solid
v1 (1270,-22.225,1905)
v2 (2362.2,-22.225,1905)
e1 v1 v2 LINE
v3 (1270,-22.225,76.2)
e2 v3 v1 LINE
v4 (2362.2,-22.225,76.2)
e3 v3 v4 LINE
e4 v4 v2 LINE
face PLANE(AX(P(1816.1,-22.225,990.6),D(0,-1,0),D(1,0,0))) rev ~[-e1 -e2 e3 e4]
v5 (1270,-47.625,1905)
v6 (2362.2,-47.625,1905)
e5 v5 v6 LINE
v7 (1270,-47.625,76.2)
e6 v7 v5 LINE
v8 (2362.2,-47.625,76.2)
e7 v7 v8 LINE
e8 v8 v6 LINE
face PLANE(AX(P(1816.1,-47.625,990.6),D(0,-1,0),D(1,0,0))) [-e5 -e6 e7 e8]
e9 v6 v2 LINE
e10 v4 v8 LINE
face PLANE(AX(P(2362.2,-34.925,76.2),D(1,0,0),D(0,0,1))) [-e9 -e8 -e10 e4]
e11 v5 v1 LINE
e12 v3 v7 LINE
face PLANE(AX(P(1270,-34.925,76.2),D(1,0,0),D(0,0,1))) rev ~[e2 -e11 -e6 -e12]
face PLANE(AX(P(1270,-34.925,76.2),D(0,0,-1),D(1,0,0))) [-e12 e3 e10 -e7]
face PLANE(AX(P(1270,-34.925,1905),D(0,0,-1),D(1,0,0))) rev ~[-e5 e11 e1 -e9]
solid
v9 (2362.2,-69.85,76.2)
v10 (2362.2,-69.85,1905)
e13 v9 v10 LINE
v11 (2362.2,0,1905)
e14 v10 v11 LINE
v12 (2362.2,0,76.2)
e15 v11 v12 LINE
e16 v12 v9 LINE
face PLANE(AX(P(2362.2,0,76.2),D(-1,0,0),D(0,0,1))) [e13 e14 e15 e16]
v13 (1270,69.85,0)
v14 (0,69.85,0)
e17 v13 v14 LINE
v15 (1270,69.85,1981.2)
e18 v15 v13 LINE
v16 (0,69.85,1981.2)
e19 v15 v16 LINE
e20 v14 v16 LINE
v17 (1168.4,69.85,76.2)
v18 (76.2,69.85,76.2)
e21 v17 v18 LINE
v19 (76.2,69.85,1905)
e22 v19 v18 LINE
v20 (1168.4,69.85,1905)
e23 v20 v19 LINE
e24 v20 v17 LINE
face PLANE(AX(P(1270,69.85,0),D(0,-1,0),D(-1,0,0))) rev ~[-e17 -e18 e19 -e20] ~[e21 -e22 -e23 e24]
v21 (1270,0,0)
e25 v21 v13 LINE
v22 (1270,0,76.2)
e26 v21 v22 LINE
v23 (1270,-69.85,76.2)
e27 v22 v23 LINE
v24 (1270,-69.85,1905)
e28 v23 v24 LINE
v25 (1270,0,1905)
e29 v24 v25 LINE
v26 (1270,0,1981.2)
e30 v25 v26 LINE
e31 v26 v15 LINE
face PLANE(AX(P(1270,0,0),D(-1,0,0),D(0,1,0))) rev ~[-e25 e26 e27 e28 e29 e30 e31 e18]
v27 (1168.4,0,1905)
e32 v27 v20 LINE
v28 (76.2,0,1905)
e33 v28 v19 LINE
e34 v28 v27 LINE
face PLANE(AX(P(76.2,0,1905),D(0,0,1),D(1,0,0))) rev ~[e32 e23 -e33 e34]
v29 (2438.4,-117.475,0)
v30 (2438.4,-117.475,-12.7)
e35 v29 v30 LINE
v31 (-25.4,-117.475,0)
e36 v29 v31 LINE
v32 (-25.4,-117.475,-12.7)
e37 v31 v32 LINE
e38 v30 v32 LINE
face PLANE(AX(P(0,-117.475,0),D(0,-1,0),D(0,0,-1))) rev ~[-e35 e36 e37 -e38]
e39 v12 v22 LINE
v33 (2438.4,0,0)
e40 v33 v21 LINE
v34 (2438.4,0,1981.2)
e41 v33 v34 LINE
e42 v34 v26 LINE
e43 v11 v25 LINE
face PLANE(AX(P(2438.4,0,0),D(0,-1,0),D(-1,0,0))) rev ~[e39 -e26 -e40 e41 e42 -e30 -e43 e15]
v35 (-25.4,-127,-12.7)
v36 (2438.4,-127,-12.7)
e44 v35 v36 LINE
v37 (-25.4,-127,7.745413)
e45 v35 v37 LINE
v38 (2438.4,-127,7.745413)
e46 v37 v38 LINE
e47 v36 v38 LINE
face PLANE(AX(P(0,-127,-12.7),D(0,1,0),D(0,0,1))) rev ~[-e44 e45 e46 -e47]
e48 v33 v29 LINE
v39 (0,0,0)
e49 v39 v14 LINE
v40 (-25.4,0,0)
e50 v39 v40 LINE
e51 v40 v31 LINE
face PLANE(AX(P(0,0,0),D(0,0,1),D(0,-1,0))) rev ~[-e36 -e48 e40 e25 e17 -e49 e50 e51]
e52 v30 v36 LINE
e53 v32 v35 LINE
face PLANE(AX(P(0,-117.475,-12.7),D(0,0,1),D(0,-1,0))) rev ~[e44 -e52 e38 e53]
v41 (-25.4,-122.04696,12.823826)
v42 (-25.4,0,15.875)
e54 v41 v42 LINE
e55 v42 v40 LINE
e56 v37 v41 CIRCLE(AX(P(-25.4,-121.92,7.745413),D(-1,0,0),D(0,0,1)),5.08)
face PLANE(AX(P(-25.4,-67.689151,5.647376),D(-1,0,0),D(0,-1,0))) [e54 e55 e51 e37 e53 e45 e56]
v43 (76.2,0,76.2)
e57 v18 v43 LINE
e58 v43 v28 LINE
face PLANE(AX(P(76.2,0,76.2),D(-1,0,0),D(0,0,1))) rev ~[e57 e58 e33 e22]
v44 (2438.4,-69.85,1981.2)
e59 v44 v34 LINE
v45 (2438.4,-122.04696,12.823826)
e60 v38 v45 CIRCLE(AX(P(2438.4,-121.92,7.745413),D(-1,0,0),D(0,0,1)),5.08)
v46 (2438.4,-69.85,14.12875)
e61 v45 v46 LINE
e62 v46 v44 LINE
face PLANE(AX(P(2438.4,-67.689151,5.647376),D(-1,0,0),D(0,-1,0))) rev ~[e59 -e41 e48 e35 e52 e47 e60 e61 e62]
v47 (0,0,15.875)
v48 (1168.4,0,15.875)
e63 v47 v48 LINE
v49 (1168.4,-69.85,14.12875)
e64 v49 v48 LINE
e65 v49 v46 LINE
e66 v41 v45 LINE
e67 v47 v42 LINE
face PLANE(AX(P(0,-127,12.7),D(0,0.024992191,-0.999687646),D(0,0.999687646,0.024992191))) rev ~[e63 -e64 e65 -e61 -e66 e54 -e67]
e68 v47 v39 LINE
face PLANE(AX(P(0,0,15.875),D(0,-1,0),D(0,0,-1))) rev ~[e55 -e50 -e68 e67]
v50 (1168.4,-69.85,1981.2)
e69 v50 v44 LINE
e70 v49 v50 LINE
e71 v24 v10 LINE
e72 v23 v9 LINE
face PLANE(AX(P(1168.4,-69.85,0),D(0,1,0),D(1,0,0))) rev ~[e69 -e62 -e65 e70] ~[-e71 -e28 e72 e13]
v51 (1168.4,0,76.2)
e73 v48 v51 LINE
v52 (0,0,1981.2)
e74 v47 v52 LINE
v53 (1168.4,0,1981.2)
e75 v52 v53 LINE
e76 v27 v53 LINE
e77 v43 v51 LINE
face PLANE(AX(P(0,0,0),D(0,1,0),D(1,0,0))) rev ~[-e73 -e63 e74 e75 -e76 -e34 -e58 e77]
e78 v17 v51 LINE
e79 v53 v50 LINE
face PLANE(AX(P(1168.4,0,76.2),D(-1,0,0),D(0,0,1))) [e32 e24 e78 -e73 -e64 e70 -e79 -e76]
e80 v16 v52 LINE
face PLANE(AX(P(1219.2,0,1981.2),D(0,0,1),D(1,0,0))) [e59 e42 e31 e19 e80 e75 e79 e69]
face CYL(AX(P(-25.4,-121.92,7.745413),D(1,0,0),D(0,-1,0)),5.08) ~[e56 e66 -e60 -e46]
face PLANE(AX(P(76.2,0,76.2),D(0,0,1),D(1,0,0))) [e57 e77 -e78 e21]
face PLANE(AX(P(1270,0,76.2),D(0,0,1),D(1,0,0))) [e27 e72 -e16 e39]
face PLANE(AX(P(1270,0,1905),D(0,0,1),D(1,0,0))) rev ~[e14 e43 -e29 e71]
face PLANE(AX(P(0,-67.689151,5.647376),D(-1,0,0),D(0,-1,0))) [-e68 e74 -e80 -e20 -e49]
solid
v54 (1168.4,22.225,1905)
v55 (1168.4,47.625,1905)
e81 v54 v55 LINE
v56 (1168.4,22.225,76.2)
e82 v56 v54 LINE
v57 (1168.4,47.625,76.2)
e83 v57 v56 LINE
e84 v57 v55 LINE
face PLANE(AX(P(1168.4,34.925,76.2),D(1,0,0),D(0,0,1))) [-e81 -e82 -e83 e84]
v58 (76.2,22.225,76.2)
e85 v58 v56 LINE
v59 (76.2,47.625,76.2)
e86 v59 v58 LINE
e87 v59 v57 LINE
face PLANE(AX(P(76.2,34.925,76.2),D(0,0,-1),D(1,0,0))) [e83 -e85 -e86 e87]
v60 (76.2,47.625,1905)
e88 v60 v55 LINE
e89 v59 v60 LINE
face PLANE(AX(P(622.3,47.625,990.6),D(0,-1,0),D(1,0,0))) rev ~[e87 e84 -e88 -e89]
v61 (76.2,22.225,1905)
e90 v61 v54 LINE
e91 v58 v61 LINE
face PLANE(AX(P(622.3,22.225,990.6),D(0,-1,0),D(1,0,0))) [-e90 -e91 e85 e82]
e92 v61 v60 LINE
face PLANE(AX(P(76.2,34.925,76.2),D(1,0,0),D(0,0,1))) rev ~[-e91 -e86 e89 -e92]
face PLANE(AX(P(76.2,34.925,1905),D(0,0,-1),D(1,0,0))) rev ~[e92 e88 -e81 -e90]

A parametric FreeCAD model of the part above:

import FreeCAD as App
import Part
import Sketcher
from FreeCAD import Vector
Q = App.Units.Quantity


def edges_at(feature, points):
    """Names of the edges that pass closest to the given points."""
    edges = feature.Shape.Edges
    near = lambda p: min(range(len(edges)), key=lambda i: edges[i].distToShape(Part.Vertex(*p))[0])
    return sorted({f"Edge{near(p) + 1}" for p in points})

doc = App.newDocument("Part")
body = doc.addObject("PartDesign::Body", "Body")

# Sketch on XY plane
sketch1 = body.newObject("Sketcher::SketchObject", "Sketch")
sketch1.AttachmentSupport = (doc.getObject("XY_Plane"), [""])
sketch1.MapMode = "FlatFace"
sketch1.addGeometry(Part.LineSegment(Vector(0, 70, 0), Vector(0, 0, 0)), False)
sketch1.addGeometry(Part.LineSegment(Vector(0, 0, 0), Vector(1168, 0, 0)), False)
sketch1.addGeometry(Part.LineSegment(Vector(1168, 0, 0), Vector(1168, -70, 0)), False)
sketch1.addGeometry(Part.LineSegment(Vector(1168, -70, 0), Vector(2438, -70, 0)), False)
sketch1.addGeometry(Part.LineSegment(Vector(2438, -70, 0), Vector(2438, 0, 0)), False)
sketch1.addGeometry(Part.LineSegment(Vector(2438, 0, 0), Vector(1270, 0, 0)), False)
sketch1.addGeometry(Part.LineSegment(Vector(1270, 0, 0), Vector(1270, 70, 0)), False)
sketch1.addGeometry(Part.LineSegment(Vector(1270, 70, 0), Vector(0, 70, 0)), False)
sketch1.addConstraint(Sketcher.Constraint("Coincident", 0, 2, 1, 1))
sketch1.addConstraint(Sketcher.Constraint("Coincident", 1, 2, 2, 1))
sketch1.addConstraint(Sketcher.Constraint("Coincident", 2, 2, 3, 1))
sketch1.addConstraint(Sketcher.Constraint("Coincident", 3, 2, 4, 1))
sketch1.addConstraint(Sketcher.Constraint("Coincident", 4, 2, 5, 1))
sketch1.addConstraint(Sketcher.Constraint("Coincident", 5, 2, 6, 1))
sketch1.addConstraint(Sketcher.Constraint("Coincident", 6, 2, 7, 1))
sketch1.addConstraint(Sketcher.Constraint("Coincident", 7, 2, 0, 1))
sketch1.addConstraint(Sketcher.Constraint("Vertical", 0))
sketch1.addConstraint(Sketcher.Constraint("Horizontal", 1))
sketch1.addConstraint(Sketcher.Constraint("Vertical", 2))
sketch1.addConstraint(Sketcher.Constraint("Horizontal", 3))
sketch1.addConstraint(Sketcher.Constraint("Vertical", 4))
sketch1.addConstraint(Sketcher.Constraint("Horizontal", 5))
sketch1.addConstraint(Sketcher.Constraint("Vertical", 6))
sketch1.addConstraint(Sketcher.Constraint("Horizontal", 7))
sketch1.addConstraint(Sketcher.Constraint("Coincident", 0, 2, -1, 1))
sketch1.addConstraint(Sketcher.Constraint("PointOnObject", 4, 2, -1))
sketch1.addConstraint(Sketcher.Constraint("Equal", 1, 5))
sketch1.addConstraint(Sketcher.Constraint("Equal", 0, 2))
sketch1.addConstraint(Sketcher.Constraint("DistanceX", 1, 1, 1, 2, Q("46 in")))
sketch1.addConstraint(Sketcher.Constraint("DistanceX", 3, 1, 3, 2, Q("50 in")))
sketch1.addConstraint(Sketcher.Constraint("DistanceY", 0, 2, 0, 1, Q("2.75 in")))
pad1 = body.newObject("PartDesign::Pad", "Pad")
pad1.Profile = sketch1
pad1.Length = Q("78 in")
body2 = doc.addObject("PartDesign::Body", "Body001")

# Sketch on XZ plane
sketch2 = body2.newObject("Sketcher::SketchObject", "Sketch001")
sketch2.AttachmentSupport = (doc.getObject("XZ_Plane001"), [""])
sketch2.MapMode = "FlatFace"
sketch2.addGeometry(Part.LineSegment(Vector(76, 1905, 0), Vector(76, 76, 0)), False)
sketch2.addGeometry(Part.LineSegment(Vector(76, 76, 0), Vector(1168, 76, 0)), False)
sketch2.addGeometry(Part.LineSegment(Vector(1168, 76, 0), Vector(1168, 1905, 0)), False)
sketch2.addGeometry(Part.LineSegment(Vector(1168, 1905, 0), Vector(76, 1905, 0)), False)
sketch2.addConstraint(Sketcher.Constraint("Coincident", 0, 2, 1, 1))
sketch2.addConstraint(Sketcher.Constraint("Coincident", 1, 2, 2, 1))
sketch2.addConstraint(Sketcher.Constraint("Coincident", 2, 2, 3, 1))
sketch2.addConstraint(Sketcher.Constraint("Coincident", 3, 2, 0, 1))
sketch2.addConstraint(Sketcher.Constraint("Vertical", 0))
sketch2.addConstraint(Sketcher.Constraint("Horizontal", 1))
sketch2.addConstraint(Sketcher.Constraint("Vertical", 2))
sketch2.addConstraint(Sketcher.Constraint("Horizontal", 3))
sketch2.addConstraint(Sketcher.Constraint("DistanceX", 1, 1, 1, 2, Q("43 in")))
sketch2.addConstraint(Sketcher.Constraint("DistanceY", 0, 2, 0, 1, Q("72 in")))
sketch2.addConstraint(Sketcher.Constraint("DistanceX", -1, 1, 0, 2, Q("3 in")))
sketch2.addConstraint(Sketcher.Constraint("DistanceY", -1, 1, 0, 2, Q("3 in")))
pad2 = body2.newObject("PartDesign::Pad", "Pad001")
pad2.Profile = sketch2
pad2.Type = "TwoLengths"
pad2.Length = Q("3 in")
pad2.Length2 = Q("3 in")
pad2.Reversed = True
body3 = doc.addObject("PartDesign::Body", "Body002")

# Sketch on XZ plane
sketch3 = body3.newObject("Sketcher::SketchObject", "Sketch002")
sketch3.AttachmentSupport = (doc.getObject("XZ_Plane002"), [""])
sketch3.MapMode = "FlatFace"
sketch3.addGeometry(Part.LineSegment(Vector(1270, 1905, 0), Vector(1270, 76, 0)), False)
sketch3.addGeometry(Part.LineSegment(Vector(1270, 76, 0), Vector(2362, 76, 0)), False)
sketch3.addGeometry(Part.LineSegment(Vector(2362, 76, 0), Vector(2362, 1905, 0)), False)
sketch3.addGeometry(Part.LineSegment(Vector(2362, 1905, 0), Vector(1270, 1905, 0)), False)
sketch3.addConstraint(Sketcher.Constraint("Coincident", 0, 2, 1, 1))
sketch3.addConstraint(Sketcher.Constraint("Coincident", 1, 2, 2, 1))
sketch3.addConstraint(Sketcher.Constraint("Coincident", 2, 2, 3, 1))
sketch3.addConstraint(Sketcher.Constraint("Coincident", 3, 2, 0, 1))
sketch3.addConstraint(Sketcher.Constraint("Vertical", 0))
sketch3.addConstraint(Sketcher.Constraint("Horizontal", 1))
sketch3.addConstraint(Sketcher.Constraint("Vertical", 2))
sketch3.addConstraint(Sketcher.Constraint("Horizontal", 3))
sketch3.addConstraint(Sketcher.Constraint("DistanceX", 1, 1, 1, 2, Q("43 in")))
sketch3.addConstraint(Sketcher.Constraint("DistanceY", 0, 2, 0, 1, Q("72 in")))
sketch3.addConstraint(Sketcher.Constraint("DistanceX", -1, 1, 0, 2, Q("50 in")))
sketch3.addConstraint(Sketcher.Constraint("DistanceY", -1, 1, 0, 2, Q("3 in")))
pad3 = body3.newObject("PartDesign::Pad", "Pad002")
pad3.Profile = sketch3
pad3.Type = "TwoLengths"
pad3.Length = Q("3 in")
pad3.Length2 = Q("3 in")
pad3.Reversed = True
doc.recompute()

boolean = body.newObject("PartDesign::Boolean", "Boolean")
boolean.Type = "Cut"
boolean.addObjects([body2])
doc.recompute()

boolean2 = body.newObject("PartDesign::Boolean", "Boolean001")
boolean2.Type = "Cut"
boolean2.addObjects([body3])

# Sketch on YZ plane
sketch4 = body.newObject("Sketcher::SketchObject", "Sketch003")
sketch4.AttachmentSupport = (doc.getObject("YZ_Plane"), [""])
sketch4.MapMode = "FlatFace"
sketch4.addGeometry(Part.LineSegment(Vector(0, 16, 0), Vector(0, 0, 0)), False)
sketch4.addGeometry(Part.LineSegment(Vector(0, 0, 0), Vector(-117, 0, 0)), False)
sketch4.addGeometry(Part.LineSegment(Vector(-117, 0, 0), Vector(-117, -13, 0)), False)
sketch4.addGeometry(Part.LineSegment(Vector(-117, -13, 0), Vector(-127, -13, 0)), False)
sketch4.addGeometry(Part.LineSegment(Vector(-127, -13, 0), Vector(-127, 13, 0)), False)
sketch4.addGeometry(Part.LineSegment(Vector(-127, 13, 0), Vector(0, 16, 0)), False)
sketch4.addConstraint(Sketcher.Constraint("Coincident", 0, 2, 1, 1))
sketch4.addConstraint(Sketcher.Constraint("Coincident", 1, 2, 2, 1))
sketch4.addConstraint(Sketcher.Constraint("Coincident", 2, 2, 3, 1))
sketch4.addConstraint(Sketcher.Constraint("Coincident", 3, 2, 4, 1))
sketch4.addConstraint(Sketcher.Constraint("Coincident", 4, 2, 5, 1))
sketch4.addConstraint(Sketcher.Constraint("Coincident", 5, 2, 0, 1))
sketch4.addConstraint(Sketcher.Constraint("Vertical", 0))
sketch4.addConstraint(Sketcher.Constraint("Horizontal", 1))
sketch4.addConstraint(Sketcher.Constraint("Vertical", 2))
sketch4.addConstraint(Sketcher.Constraint("Horizontal", 3))
sketch4.addConstraint(Sketcher.Constraint("Vertical", 4))
sketch4.addConstraint(Sketcher.Constraint("Coincident", 0, 2, -1, 1))
sketch4.addConstraint(Sketcher.Constraint("DistanceY", 4, 1, 4, 2, Q("1 in")))
sketch4.addConstraint(Sketcher.Constraint("DistanceY", 2, 2, 2, 1, Q("0.5 in")))
sketch4.addConstraint(Sketcher.Constraint("DistanceX", 3, 2, -1, 1, Q("5 in")))
sketch4.addConstraint(Sketcher.Constraint("DistanceX", 1, 2, 1, 1, Q("4.625 in")))
sketch4.addConstraint(Sketcher.Constraint("DistanceY", 0, 2, 0, 1, Q("0.625 in")))
pad4 = body.newObject("PartDesign::Pad", "Pad003")
pad4.Profile = sketch4
pad4.Type = "TwoLengths"
pad4.Length = Q("96 in")
pad4.Length2 = Q("1 in")
doc.recompute()

fillet = body.newObject("PartDesign::Fillet", "Fillet")
fillet.Base = (pad4, edges_at(pad4, [(1206.5, -127, 12.7)]))
fillet.Radius = Q("0.2 in")
body4 = doc.addObject("PartDesign::Body", "Body003")

# Sketch on XZ plane
sketch5 = body4.newObject("Sketcher::SketchObject", "Sketch004")
sketch5.AttachmentSupport = (doc.getObject("XZ_Plane003"), [""])
sketch5.MapMode = "FlatFace"
sketch5.AttachmentOffset = App.Placement(Vector(0, 0, -1.375 * 25.4), App.Rotation())
sketch5.addGeometry(Part.LineSegment(Vector(76, 1905, 0), Vector(76, 76, 0)), False)
sketch5.addGeometry(Part.LineSegment(Vector(76, 76, 0), Vector(1168, 76, 0)), False)
sketch5.addGeometry(Part.LineSegment(Vector(1168, 76, 0), Vector(1168, 1905, 0)), False)
sketch5.addGeometry(Part.LineSegment(Vector(1168, 1905, 0), Vector(76, 1905, 0)), False)
sketch5.addConstraint(Sketcher.Constraint("Coincident", 0, 2, 1, 1))
sketch5.addConstraint(Sketcher.Constraint("Coincident", 1, 2, 2, 1))
sketch5.addConstraint(Sketcher.Constraint("Coincident", 2, 2, 3, 1))
sketch5.addConstraint(Sketcher.Constraint("Coincident", 3, 2, 0, 1))
sketch5.addConstraint(Sketcher.Constraint("Vertical", 0))
sketch5.addConstraint(Sketcher.Constraint("Horizontal", 1))
sketch5.addConstraint(Sketcher.Constraint("Vertical", 2))
sketch5.addConstraint(Sketcher.Constraint("Horizontal", 3))
sketch5.addConstraint(Sketcher.Constraint("DistanceX", 1, 1, 1, 2, Q("43 in")))
sketch5.addConstraint(Sketcher.Constraint("DistanceY", 0, 2, 0, 1, Q("72 in")))
sketch5.addConstraint(Sketcher.Constraint("DistanceX", -1, 1, 0, 2, Q("3 in")))
sketch5.addConstraint(Sketcher.Constraint("DistanceY", -1, 1, 0, 2, Q("3 in")))
pad5 = body4.newObject("PartDesign::Pad", "Pad004")
pad5.Profile = sketch5
pad5.Length = Q("1 in")
pad5.Midplane = True
body5 = doc.addObject("PartDesign::Body", "Body004")

# Sketch on XZ plane
sketch6 = body5.newObject("Sketcher::SketchObject", "Sketch005")
sketch6.AttachmentSupport = (doc.getObject("XZ_Plane004"), [""])
sketch6.MapMode = "FlatFace"
sketch6.AttachmentOffset = App.Placement(Vector(0, 0, 1.375 * 25.4), App.Rotation())
sketch6.addGeometry(Part.LineSegment(Vector(1270, 1905, 0), Vector(1270, 76, 0)), False)
sketch6.addGeometry(Part.LineSegment(Vector(1270, 76, 0), Vector(2362, 76, 0)), False)
sketch6.addGeometry(Part.LineSegment(Vector(2362, 76, 0), Vector(2362, 1905, 0)), False)
sketch6.addGeometry(Part.LineSegment(Vector(2362, 1905, 0), Vector(1270, 1905, 0)), False)
sketch6.addConstraint(Sketcher.Constraint("Coincident", 0, 2, 1, 1))
sketch6.addConstraint(Sketcher.Constraint("Coincident", 1, 2, 2, 1))
sketch6.addConstraint(Sketcher.Constraint("Coincident", 2, 2, 3, 1))
sketch6.addConstraint(Sketcher.Constraint("Coincident", 3, 2, 0, 1))
sketch6.addConstraint(Sketcher.Constraint("Vertical", 0))
sketch6.addConstraint(Sketcher.Constraint("Horizontal", 1))
sketch6.addConstraint(Sketcher.Constraint("Vertical", 2))
sketch6.addConstraint(Sketcher.Constraint("Horizontal", 3))
sketch6.addConstraint(Sketcher.Constraint("DistanceX", 1, 1, 1, 2, Q("43 in")))
sketch6.addConstraint(Sketcher.Constraint("DistanceY", 0, 2, 0, 1, Q("72 in")))
sketch6.addConstraint(Sketcher.Constraint("DistanceX", -1, 1, 0, 2, Q("50 in")))
sketch6.addConstraint(Sketcher.Constraint("DistanceY", -1, 1, 0, 2, Q("3 in")))
pad6 = body5.newObject("PartDesign::Pad", "Pad005")
pad6.Profile = sketch6
pad6.Length = Q("1 in")
pad6.Midplane = True

doc.recompute()
